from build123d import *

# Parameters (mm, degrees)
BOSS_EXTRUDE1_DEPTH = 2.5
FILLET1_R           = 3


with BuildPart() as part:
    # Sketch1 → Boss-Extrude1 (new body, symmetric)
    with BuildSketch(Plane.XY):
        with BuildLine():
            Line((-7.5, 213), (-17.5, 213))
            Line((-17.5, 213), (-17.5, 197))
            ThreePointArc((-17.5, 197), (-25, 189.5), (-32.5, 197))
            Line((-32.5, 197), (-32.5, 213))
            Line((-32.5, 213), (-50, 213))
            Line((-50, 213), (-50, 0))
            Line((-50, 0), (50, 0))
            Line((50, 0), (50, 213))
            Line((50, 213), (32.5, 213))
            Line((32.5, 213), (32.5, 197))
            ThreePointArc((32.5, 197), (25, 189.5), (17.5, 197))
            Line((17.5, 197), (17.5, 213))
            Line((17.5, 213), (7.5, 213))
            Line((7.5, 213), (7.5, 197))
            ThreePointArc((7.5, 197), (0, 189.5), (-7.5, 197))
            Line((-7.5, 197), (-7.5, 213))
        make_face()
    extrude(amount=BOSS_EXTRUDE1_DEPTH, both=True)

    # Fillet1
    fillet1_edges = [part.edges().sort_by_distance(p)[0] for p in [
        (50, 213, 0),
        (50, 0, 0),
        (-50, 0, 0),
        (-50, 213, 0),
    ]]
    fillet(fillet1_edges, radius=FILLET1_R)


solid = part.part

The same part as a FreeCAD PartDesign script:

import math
import FreeCAD as App
import Part
import Sketcher

V = App.Vector


def edges_at(feature, points):
    """Names of the edges that pass closest to the given points."""
    edges = feature.Shape.Edges
    near = lambda p: min(range(len(edges)), key=lambda i: edges[i].distToShape(Part.Vertex(*p))[0])
    return sorted({f"Edge{near(p) + 1}" for p in points})

doc = App.newDocument("Part")
body = doc.addObject("PartDesign::Body", "Body")

# Sketch on XY plane
sketch1 = doc.addObject("Sketcher::SketchObject", "Sketch")
body.addObject(sketch1)
sketch1.AttachmentSupport = (doc.XY_Plane, [""])
sketch1.MapMode = "FlatFace"
sketch1.addGeometry(Part.LineSegment(V(-8, 213, 0), V(-18, 213, 0)), False)
sketch1.addGeometry(Part.LineSegment(V(-18, 213, 0), V(-18, 197, 0)), False)
sketch1.addGeometry(Part.ArcOfCircle(Part.Circle(V(-25, 197, 0), V(0, 0, 1), 8), math.radians(180), math.radians(360)), False)
sketch1.addGeometry(Part.LineSegment(V(-32, 197, 0), V(-32, 213, 0)), False)
sketch1.addGeometry(Part.LineSegment(V(-32, 213, 0), V(-50, 213, 0)), False)
sketch1.addGeometry(Part.LineSegment(V(-50, 213, 0), V(-50, 0, 0)), False)
sketch1.addGeometry(Part.LineSegment(V(-50, 0, 0), V(50, 0, 0)), False)
sketch1.addGeometry(Part.LineSegment(V(50, 0, 0), V(50, 213, 0)), False)
sketch1.addGeometry(Part.LineSegment(V(50, 213, 0), V(32, 213, 0)), False)
sketch1.addGeometry(Part.LineSegment(V(32, 213, 0), V(32, 197, 0)), False)
sketch1.addGeometry(Part.ArcOfCircle(Part.Circle(V(25, 197, 0), V(0, 0, 1), 8), math.radians(180), math.radians(360)), False)
sketch1.addGeometry(Part.LineSegment(V(18, 197, 0), V(18, 213, 0)), False)
sketch1.addGeometry(Part.LineSegment(V(18, 213, 0), V(8, 213, 0)), False)
sketch1.addGeometry(Part.LineSegment(V(8, 213, 0), V(8, 197, 0)), False)
sketch1.addGeometry(Part.ArcOfCircle(Part.Circle(V(0, 197, 0), V(0, 0, 1), 8), math.radians(180), math.radians(360)), False)
sketch1.addGeometry(Part.LineSegment(V(-8, 197, 0), V(-8, 213, 0)), False)
sketch1.addConstraint(Sketcher.Constraint("Coincident", 0, 2, 1, 1))
sketch1.addConstraint(Sketcher.Constraint("Tangent", 1, 2, 2, 2))
sketch1.addConstraint(Sketcher.Constraint("Tangent", 2, 1, 3, 1))
sketch1.addConstraint(Sketcher.Constraint("Coincident", 3, 2, 4, 1))
sketch1.addConstraint(Sketcher.Constraint("Coincident", 4, 2, 5, 1))
sketch1.addConstraint(Sketcher.Constraint("Coincident", 5, 2, 6, 1))
sketch1.addConstraint(Sketcher.Constraint("Coincident", 6, 2, 7, 1))
sketch1.addConstraint(Sketcher.Constraint("Coincident", 7, 2, 8, 1))
sketch1.addConstraint(Sketcher.Constraint("Coincident", 8, 2, 9, 1))
sketch1.addConstraint(Sketcher.Constraint("Tangent", 9, 2, 10, 2))
sketch1.addConstraint(Sketcher.Constraint("Tangent", 10, 1, 11, 1))
sketch1.addConstraint(Sketcher.Constraint("Coincident", 11, 2, 12, 1))
sketch1.addConstraint(Sketcher.Constraint("Coincident", 12, 2, 13, 1))
sketch1.addConstraint(Sketcher.Constraint("Tangent", 13, 2, 14, 2))
sketch1.addConstraint(Sketcher.Constraint("Tangent", 14, 1, 15, 1))
sketch1.addConstraint(Sketcher.Constraint("Coincident", 15, 2, 0, 1))
sketch1.addConstraint(Sketcher.Constraint("Horizontal", 0))
sketch1.addConstraint(Sketcher.Constraint("Vertical", 1))
sketch1.addConstraint(Sketcher.Constraint("Vertical", 3))
sketch1.addConstraint(Sketcher.Constraint("Horizontal", 4))
sketch1.addConstraint(Sketcher.Constraint("Vertical", 5))
sketch1.addConstraint(Sketcher.Constraint("Horizontal", 6))
sketch1.addConstraint(Sketcher.Constraint("Vertical", 7))
sketch1.addConstraint(Sketcher.Constraint("Horizontal", 8))
sketch1.addConstraint(Sketcher.Constraint("Vertical", 9))
sketch1.addConstraint(Sketcher.Constraint("Vertical", 11))
sketch1.addConstraint(Sketcher.Constraint("Horizontal", 12))
sketch1.addConstraint(Sketcher.Constraint("Vertical", 13))
sketch1.addConstraint(Sketcher.Constraint("Vertical", 15))
sketch1.addConstraint(Sketcher.Constraint("Equal", 2, 10))
sketch1.addConstraint(Sketcher.Constraint("Equal", 10, 14))
sketch1.addConstraint(Sketcher.Constraint("Symmetric", 5, 2, 6, 2, -1, 1))
sketch1.addConstraint(Sketcher.Constraint("Symmetric", 2, 3, 10, 3, -2))
sketch1.addConstraint(Sketcher.Constraint("Symmetric", 12, 2, 15, 2, -2))
sketch1.addConstraint(Sketcher.Constraint("Horizontal", 10, 3, 14, 3))
sketch1.addConstraint(Sketcher.Constraint("Horizontal", 0, 2, 3, 2))
sketch1.addConstraint(Sketcher.Constraint("Horizontal", 4, 2, 7, 2))
sketch1.addConstraint(Sketcher.Constraint("Radius", 2, 7.5))
sketch1.addConstraint(Sketcher.Constraint("DistanceX", 0, 2, 0, 1, 10.0))
sketch1.addConstraint(Sketcher.Constraint("DistanceX", 6, 1, 6, 2, 100.0))
sketch1.addConstraint(Sketcher.Constraint("DistanceY", 1, 2, 1, 1, 16.0))
sketch1.addConstraint(Sketcher.Constraint("DistanceY", 5, 2, 5, 1, 213.0))
pad1 = doc.addObject("PartDesign::Pad", "Pad")
body.addObject(pad1)
pad1.Profile = sketch1
pad1.Length = 5
pad1.Midplane = True
doc.recompute()

fillet = doc.addObject("PartDesign::Fillet", "Fillet")
body.addObject(fillet)
fillet.Base = (pad1, edges_at(pad1, [
    (50, 213, 0),
    (50, 0, 0),
    (-50, 0, 0),
    (-50, 213, 0),
]))
fillet.Radius = 3

doc.recompute()
